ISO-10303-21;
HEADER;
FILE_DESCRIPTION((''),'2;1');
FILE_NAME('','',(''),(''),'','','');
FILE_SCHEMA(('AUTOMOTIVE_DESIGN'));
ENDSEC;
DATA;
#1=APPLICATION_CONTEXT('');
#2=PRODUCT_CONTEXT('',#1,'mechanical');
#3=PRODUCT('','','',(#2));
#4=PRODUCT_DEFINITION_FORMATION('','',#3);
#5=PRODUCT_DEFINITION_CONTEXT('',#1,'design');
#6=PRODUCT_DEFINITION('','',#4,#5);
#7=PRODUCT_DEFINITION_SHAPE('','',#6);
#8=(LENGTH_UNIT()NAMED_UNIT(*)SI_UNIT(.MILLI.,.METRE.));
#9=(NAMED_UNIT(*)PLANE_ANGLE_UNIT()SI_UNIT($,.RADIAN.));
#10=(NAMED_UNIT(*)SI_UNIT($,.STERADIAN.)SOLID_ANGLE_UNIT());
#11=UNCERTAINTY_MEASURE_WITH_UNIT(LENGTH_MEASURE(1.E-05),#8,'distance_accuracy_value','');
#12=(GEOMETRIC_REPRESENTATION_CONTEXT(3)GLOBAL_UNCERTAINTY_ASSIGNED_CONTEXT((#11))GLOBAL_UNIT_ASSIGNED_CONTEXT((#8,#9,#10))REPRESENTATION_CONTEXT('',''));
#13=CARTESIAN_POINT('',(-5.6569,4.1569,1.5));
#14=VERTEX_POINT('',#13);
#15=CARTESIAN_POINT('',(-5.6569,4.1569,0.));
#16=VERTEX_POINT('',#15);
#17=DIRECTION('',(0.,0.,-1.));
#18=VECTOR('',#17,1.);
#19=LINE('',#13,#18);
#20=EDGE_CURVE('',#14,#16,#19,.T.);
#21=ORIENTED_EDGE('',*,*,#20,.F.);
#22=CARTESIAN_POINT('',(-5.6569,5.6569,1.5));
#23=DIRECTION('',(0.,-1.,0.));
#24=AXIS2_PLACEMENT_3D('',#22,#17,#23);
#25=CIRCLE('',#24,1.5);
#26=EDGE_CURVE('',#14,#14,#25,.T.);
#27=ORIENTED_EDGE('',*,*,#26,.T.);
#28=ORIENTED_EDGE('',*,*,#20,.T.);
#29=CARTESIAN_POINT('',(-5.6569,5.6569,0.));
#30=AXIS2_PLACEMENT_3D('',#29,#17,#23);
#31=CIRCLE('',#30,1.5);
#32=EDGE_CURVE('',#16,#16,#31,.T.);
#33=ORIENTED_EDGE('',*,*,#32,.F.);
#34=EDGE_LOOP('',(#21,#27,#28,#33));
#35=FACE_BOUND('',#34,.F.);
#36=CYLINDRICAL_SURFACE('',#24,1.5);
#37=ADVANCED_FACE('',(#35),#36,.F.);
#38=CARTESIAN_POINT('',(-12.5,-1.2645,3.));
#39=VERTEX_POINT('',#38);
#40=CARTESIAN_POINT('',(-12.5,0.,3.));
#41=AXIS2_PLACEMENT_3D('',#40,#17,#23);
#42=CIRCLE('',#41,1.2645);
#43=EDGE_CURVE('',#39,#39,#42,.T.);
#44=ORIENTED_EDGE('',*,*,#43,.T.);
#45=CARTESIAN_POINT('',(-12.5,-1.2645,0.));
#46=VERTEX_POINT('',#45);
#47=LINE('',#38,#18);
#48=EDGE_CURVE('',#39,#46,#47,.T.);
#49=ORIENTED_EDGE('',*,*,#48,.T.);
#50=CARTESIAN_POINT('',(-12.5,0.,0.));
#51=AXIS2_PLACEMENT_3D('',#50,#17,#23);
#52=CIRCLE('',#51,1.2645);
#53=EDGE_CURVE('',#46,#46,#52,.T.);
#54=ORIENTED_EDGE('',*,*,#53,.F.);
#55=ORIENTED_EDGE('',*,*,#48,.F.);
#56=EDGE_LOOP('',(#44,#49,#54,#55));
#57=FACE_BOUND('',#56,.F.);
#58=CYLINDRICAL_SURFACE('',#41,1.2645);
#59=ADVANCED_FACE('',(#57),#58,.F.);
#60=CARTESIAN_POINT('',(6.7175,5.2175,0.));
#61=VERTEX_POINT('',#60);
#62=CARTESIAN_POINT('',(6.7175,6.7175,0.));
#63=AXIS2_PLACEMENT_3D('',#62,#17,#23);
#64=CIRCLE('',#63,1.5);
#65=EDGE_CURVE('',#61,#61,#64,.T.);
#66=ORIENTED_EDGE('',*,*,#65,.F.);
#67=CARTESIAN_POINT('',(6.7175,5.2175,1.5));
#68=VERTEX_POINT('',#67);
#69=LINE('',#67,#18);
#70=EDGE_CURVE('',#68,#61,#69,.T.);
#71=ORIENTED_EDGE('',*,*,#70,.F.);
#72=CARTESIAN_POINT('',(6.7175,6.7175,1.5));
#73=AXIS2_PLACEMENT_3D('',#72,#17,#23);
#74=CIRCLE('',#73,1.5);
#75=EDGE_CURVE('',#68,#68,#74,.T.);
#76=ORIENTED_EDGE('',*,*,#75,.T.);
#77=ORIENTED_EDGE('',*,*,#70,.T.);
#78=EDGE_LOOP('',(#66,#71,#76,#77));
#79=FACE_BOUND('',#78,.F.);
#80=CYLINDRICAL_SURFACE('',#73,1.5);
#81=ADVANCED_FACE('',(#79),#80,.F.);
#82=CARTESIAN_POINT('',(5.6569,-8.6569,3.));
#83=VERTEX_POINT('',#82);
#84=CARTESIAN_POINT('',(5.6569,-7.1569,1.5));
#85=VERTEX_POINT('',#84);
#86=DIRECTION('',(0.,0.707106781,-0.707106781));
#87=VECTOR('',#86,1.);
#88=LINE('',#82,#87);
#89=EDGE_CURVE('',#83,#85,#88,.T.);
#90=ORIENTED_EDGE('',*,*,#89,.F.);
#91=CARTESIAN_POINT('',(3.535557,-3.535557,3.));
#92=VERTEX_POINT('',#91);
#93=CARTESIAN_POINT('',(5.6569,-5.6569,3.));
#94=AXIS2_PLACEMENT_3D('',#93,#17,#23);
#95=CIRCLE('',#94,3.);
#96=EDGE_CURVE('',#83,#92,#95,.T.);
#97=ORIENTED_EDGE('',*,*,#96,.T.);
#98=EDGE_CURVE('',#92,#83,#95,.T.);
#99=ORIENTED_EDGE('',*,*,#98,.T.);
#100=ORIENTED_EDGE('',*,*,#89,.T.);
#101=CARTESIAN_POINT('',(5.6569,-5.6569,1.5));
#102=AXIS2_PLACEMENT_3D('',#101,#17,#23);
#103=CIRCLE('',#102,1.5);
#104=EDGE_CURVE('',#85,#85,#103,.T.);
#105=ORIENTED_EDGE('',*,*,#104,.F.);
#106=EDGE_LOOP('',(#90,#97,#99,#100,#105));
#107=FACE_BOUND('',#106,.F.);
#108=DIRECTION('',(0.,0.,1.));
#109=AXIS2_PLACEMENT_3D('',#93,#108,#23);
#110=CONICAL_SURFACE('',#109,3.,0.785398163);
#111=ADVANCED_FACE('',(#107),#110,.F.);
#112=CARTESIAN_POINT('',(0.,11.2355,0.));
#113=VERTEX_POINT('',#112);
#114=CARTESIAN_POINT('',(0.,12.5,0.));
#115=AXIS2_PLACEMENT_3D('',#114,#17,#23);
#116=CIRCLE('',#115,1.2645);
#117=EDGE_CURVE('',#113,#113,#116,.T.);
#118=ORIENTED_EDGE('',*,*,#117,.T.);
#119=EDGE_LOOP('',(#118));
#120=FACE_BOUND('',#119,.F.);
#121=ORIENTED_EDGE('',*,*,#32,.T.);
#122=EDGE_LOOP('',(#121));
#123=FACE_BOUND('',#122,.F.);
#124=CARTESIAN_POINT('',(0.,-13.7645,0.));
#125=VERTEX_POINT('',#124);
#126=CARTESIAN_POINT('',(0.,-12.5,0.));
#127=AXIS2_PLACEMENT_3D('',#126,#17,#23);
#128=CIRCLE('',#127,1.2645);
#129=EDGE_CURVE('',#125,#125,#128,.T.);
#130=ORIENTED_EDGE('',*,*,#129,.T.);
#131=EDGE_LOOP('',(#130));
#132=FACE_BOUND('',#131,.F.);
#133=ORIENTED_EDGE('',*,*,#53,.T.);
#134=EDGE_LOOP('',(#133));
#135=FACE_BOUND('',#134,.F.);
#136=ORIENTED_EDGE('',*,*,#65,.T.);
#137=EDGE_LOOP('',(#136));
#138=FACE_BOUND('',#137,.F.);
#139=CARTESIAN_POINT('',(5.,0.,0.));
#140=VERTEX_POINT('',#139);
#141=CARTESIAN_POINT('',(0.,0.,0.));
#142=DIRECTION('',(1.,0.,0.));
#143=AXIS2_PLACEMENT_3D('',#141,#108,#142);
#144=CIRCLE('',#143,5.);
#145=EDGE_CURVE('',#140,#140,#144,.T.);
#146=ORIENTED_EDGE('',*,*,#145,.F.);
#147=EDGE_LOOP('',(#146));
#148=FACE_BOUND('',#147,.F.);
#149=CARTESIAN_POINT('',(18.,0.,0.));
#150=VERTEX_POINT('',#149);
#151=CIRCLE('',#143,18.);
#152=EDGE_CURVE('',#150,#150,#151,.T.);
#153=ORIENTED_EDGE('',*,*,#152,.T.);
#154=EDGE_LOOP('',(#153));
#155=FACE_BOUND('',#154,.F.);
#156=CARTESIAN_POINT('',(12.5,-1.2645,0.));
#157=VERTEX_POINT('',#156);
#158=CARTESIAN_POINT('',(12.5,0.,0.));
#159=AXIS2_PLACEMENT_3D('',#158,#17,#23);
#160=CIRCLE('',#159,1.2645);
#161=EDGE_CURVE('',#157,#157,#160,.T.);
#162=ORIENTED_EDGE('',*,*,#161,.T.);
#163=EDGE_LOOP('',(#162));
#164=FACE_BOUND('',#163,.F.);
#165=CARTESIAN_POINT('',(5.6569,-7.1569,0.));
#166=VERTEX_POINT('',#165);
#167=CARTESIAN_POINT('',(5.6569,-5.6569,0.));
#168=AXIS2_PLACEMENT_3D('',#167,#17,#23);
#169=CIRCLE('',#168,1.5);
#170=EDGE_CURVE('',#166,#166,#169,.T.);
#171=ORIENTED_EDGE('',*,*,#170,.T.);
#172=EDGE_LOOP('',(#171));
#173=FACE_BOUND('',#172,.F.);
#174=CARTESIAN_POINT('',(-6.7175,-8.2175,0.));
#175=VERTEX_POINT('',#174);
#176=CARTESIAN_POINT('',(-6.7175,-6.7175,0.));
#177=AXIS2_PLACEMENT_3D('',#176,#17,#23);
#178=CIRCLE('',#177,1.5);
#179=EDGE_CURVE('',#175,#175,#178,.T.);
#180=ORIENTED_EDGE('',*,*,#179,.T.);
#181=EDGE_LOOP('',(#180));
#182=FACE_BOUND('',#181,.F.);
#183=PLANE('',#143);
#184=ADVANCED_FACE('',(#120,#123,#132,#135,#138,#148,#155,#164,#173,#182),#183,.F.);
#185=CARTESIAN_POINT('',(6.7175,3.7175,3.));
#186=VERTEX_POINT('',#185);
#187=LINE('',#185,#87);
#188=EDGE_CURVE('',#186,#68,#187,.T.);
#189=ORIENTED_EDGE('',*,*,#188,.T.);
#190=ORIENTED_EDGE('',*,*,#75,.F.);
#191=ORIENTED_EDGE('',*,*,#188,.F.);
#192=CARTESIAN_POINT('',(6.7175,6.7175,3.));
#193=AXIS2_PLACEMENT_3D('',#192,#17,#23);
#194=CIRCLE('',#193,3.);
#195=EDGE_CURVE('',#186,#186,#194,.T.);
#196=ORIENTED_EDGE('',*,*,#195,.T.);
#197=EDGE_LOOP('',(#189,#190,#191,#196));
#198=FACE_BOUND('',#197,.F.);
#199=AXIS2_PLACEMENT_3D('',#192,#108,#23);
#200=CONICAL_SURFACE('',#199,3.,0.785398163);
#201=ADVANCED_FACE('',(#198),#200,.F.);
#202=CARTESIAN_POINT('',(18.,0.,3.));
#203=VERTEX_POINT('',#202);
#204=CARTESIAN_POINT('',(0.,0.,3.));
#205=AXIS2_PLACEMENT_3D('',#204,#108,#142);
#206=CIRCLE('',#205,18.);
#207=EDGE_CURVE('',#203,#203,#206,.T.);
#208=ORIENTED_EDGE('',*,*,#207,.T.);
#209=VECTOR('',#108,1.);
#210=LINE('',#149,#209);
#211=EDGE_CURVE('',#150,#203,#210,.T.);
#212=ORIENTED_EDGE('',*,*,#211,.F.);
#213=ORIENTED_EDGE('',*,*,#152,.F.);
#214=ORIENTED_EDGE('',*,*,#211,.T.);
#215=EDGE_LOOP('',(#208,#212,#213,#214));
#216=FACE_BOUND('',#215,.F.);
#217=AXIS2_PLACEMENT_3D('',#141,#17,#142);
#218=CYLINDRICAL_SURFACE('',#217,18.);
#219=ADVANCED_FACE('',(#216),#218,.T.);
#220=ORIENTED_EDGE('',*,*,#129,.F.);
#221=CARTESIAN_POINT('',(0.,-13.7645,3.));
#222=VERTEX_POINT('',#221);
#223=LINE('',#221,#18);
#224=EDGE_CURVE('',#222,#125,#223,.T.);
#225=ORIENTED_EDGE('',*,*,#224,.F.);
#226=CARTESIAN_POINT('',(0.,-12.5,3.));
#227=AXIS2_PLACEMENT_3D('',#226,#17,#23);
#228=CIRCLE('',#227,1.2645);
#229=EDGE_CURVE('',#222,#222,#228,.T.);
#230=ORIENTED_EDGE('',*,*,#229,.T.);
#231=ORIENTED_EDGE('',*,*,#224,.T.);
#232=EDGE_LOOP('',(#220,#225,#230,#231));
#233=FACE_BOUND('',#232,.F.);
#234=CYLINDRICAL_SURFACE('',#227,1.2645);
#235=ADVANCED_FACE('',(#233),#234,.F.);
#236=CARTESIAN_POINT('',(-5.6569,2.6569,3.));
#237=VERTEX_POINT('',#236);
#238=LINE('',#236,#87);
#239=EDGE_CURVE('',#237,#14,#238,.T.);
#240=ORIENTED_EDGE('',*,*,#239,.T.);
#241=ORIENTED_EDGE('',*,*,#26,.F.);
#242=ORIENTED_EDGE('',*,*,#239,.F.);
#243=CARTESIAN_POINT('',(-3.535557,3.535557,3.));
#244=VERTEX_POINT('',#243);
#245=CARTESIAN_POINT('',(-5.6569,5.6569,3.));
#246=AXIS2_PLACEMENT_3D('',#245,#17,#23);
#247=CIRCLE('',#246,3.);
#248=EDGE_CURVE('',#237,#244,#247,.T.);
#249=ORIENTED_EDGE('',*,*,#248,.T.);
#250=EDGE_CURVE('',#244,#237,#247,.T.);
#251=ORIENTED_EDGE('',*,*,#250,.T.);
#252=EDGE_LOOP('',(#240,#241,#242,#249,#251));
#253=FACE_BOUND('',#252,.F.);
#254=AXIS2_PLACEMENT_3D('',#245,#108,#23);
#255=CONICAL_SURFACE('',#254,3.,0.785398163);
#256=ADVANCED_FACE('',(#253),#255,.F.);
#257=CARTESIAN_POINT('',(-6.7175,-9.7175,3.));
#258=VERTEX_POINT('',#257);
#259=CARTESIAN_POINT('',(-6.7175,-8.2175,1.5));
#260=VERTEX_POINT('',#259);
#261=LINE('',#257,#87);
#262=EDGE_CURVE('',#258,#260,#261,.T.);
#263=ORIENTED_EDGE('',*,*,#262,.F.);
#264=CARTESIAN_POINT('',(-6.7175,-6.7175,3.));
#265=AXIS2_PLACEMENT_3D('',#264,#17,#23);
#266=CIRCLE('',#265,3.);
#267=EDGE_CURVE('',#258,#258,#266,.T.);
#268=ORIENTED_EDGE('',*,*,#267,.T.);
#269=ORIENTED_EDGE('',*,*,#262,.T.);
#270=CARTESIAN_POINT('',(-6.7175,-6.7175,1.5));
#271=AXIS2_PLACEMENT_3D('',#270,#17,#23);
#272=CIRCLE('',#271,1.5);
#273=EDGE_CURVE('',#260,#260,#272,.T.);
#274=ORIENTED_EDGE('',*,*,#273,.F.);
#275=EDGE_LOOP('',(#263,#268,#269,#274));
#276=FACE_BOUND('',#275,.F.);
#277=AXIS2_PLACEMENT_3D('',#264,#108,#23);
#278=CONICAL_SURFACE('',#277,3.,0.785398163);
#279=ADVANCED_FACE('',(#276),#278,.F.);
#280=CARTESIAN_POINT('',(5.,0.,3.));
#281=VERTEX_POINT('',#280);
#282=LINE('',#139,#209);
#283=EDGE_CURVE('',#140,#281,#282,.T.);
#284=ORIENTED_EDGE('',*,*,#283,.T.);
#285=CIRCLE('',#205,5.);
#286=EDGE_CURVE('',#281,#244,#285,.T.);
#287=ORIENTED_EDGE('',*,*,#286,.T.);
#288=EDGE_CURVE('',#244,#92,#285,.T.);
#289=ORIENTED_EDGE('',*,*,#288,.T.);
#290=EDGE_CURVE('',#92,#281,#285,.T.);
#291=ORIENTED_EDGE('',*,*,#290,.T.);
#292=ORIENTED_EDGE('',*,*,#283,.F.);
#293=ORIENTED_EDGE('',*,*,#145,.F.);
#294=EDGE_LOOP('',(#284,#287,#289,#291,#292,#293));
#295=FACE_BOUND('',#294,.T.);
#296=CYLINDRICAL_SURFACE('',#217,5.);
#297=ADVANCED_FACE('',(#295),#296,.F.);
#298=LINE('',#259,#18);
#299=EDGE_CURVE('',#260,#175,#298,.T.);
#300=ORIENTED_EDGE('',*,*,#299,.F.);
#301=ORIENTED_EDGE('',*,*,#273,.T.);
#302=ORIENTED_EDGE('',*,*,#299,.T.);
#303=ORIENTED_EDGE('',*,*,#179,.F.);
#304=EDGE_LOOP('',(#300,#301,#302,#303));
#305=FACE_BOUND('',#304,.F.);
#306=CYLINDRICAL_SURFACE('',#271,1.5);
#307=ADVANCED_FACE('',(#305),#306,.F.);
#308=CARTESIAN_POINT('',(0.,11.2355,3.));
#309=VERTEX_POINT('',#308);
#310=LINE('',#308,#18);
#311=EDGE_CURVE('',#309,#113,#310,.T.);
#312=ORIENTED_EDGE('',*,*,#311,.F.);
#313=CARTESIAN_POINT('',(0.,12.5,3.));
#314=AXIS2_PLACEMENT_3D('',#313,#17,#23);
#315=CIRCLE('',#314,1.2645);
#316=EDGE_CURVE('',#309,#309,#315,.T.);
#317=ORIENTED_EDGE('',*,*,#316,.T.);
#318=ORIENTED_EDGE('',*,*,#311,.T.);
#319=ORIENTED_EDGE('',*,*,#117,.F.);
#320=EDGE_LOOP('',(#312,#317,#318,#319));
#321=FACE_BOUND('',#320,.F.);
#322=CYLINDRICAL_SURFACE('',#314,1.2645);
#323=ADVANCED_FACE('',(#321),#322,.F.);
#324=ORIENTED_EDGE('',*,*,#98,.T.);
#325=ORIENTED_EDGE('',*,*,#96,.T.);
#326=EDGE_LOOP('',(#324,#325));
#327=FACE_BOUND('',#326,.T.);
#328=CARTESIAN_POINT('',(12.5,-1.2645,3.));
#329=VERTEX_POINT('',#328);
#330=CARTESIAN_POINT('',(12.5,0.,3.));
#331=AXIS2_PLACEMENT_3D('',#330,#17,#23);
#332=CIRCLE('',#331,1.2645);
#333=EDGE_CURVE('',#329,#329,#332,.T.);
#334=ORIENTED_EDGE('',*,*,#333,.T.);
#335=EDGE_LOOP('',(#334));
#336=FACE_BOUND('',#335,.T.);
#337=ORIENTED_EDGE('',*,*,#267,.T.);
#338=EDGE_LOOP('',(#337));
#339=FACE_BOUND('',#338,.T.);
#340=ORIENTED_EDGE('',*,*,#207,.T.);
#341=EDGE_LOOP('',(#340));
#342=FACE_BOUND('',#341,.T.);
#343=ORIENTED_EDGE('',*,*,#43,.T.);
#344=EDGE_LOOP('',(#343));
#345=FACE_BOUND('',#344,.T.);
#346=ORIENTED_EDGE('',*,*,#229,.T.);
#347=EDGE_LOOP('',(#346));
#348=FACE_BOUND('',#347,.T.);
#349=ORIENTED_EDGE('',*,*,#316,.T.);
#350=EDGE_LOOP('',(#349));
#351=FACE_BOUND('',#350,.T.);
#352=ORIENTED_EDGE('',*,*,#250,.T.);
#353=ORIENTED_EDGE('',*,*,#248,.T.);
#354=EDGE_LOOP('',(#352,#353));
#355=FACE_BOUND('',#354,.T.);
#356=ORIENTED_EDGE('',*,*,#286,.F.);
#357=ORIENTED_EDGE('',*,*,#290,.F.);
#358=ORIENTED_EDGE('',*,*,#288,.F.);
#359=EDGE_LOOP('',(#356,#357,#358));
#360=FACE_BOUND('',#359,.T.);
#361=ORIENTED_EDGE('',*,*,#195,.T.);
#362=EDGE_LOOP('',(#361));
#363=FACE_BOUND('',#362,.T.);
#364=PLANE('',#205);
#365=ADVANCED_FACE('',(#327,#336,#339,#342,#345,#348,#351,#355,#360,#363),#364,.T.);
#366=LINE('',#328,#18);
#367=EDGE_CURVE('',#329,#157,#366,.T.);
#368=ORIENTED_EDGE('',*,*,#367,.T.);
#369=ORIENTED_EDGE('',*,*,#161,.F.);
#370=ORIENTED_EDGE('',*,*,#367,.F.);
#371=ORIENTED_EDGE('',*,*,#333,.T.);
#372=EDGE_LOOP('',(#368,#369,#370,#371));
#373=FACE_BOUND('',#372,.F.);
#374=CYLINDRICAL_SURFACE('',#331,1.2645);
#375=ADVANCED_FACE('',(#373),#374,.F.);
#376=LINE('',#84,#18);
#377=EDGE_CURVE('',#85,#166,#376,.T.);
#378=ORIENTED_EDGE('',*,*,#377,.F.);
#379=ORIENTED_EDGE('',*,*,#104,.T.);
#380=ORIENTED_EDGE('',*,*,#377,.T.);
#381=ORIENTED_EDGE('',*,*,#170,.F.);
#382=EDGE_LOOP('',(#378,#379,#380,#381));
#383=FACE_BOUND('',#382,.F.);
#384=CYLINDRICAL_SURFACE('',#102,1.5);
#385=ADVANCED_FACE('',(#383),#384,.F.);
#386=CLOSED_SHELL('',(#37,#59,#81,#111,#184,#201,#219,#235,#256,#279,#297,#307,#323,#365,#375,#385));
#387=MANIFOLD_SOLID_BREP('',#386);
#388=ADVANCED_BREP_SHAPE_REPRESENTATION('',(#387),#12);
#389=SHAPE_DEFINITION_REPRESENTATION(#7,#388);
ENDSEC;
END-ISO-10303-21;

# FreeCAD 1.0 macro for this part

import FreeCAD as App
import Part
import Sketcher
Q = App.Units.Quantity

doc = App.newDocument("Part")
body = doc.addObject("PartDesign::Body", "Body")

# Sketch on XY plane
sketch1 = body.newObject("Sketcher::SketchObject", "Sketch")
sketch1.AttachmentSupport = (doc.getObject("XY_Plane"), [""])
sketch1.MapMode = "FlatFace"
sketch1.addGeometry(Part.Circle(App.Vector(0, 0, 0), App.Vector(0, 0, 1), 18), False)
sketch1.addGeometry(Part.Circle(App.Vector(0, 0, 0), App.Vector(0, 0, 1), 5), False)
sketch1.addConstraint(Sketcher.Constraint("Coincident", 0, 3, -1, 1))
sketch1.addConstraint(Sketcher.Constraint("Coincident", 1, 3, -1, 1))
sketch1.addConstraint(Sketcher.Constraint("Diameter", 0, Q("36 mm")))
sketch1.addConstraint(Sketcher.Constraint("Diameter", 1, Q("10 mm")))
pad1 = body.newObject("PartDesign::Pad", "Pad")
pad1.Profile = sketch1
pad1.Length = 3

# Sketch on XY plane
sketch2 = body.newObject("Sketcher::SketchObject", "Sketch001")
sketch2.AttachmentSupport = (doc.getObject("XY_Plane"), [""])
sketch2.MapMode = "FlatFace"
sketch2.AttachmentOffset = App.Placement(App.Vector(0, 0, 3), App.Rotation())
sketch2.addGeometry(Part.Circle(App.Vector(6.7, 6.7, 0), App.Vector(0, 0, 1), 1.5), False)
sketch2.addGeometry(Part.Circle(App.Vector(-5.7, 5.7, 0), App.Vector(0, 0, 1), 1.5), False)
sketch2.addGeometry(Part.Circle(App.Vector(-6.7, -6.7, 0), App.Vector(0, 0, 1), 1.5), False)
sketch2.addGeometry(Part.Circle(App.Vector(5.7, -5.7, 0), App.Vector(0, 0, 1), 1.5), False)
sketch2.addConstraint(Sketcher.Constraint("Equal", 0, 1))
sketch2.addConstraint(Sketcher.Constraint("Equal", 1, 2))
sketch2.addConstraint(Sketcher.Constraint("Equal", 2, 3))
sketch2.addConstraint(Sketcher.Constraint("Symmetric", 0, 3, 2, 3, -1, 1))
sketch2.addConstraint(Sketcher.Constraint("Symmetric", 1, 3, 3, 3, -1, 1))
sketch2.addConstraint(Sketcher.Constraint("Diameter", 0, Q("3 mm")))
sketch2.addConstraint(Sketcher.Constraint("DistanceX", 1, 3, -1, 1, Q("5.657 mm")))
sketch2.addConstraint(Sketcher.Constraint("DistanceY", -1, 1, 1, 3, Q("5.657 mm")))
sketch2.addConstraint(Sketcher.Constraint("DistanceX", 2, 3, 0, 3, Q("13.435 mm")))
sketch2.addConstraint(Sketcher.Constraint("DistanceY", 2, 3, 0, 3, Q("13.435 mm")))
doc.recompute()
hole = body.newObject("PartDesign::Hole", "Hole")
hole.Profile = sketch2
hole.ThreadType = "None"
hole.Diameter = 3
hole.DepthType = "Dimension"
hole.Depth = 5
hole.DrillPoint = "Angled"
hole.DrillPointAngle = 118
hole.HoleCutType = "Countersink"
hole.HoleCutDiameter = 6
hole.HoleCutCountersinkAngle = 90

# Sketch on XY plane
sketch3 = body.newObject("Sketcher::SketchObject", "Sketch002")
sketch3.AttachmentSupport = (doc.getObject("XY_Plane"), [""])
sketch3.MapMode = "FlatFace"
sketch3.AttachmentOffset = App.Placement(App.Vector(0, 0, 3), App.Rotation())
sketch3.addGeometry(Part.Circle(App.Vector(0, 12.5, 0), App.Vector(0, 0, 1), 1.3), False)
sketch3.addGeometry(Part.Circle(App.Vector(-12.5, 0, 0), App.Vector(0, 0, 1), 1.3), False)
sketch3.addGeometry(Part.Circle(App.Vector(0, -12.5, 0), App.Vector(0, 0, 1), 1.3), False)
sketch3.addGeometry(Part.Circle(App.Vector(12.5, 0, 0), App.Vector(0, 0, 1), 1.3), False)
sketch3.addConstraint(Sketcher.Constraint("Equal", 0, 1))
sketch3.addConstraint(Sketcher.Constraint("Equal", 1, 2))
sketch3.addConstraint(Sketcher.Constraint("Equal", 2, 3))
sketch3.addConstraint(Sketcher.Constraint("Symmetric", 0, 3, 2, 3, -1, 1))
sketch3.addConstraint(Sketcher.Constraint("Symmetric", 1, 3, 3, 3, -1, 1))
sketch3.addConstraint(Sketcher.Constraint("PointOnObject", 0, 3, -2))
sketch3.addConstraint(Sketcher.Constraint("PointOnObject", 1, 3, -1))
sketch3.addConstraint(Sketcher.Constraint("Diameter", 0, Q("2.529 mm")))
sketch3.addConstraint(Sketcher.Constraint("DistanceY", 2, 3, 0, 3, Q("25 mm")))
sketch3.addConstraint(Sketcher.Constraint("DistanceX", 1, 3, 3, 3, Q("25 mm")))
doc.recompute()
hole2 = body.newObject("PartDesign::Hole", "Hole001")
hole2.Profile = sketch3
hole2.ThreadType = "None"
hole2.Diameter = 2.529
hole2.DepthType = "Dimension"
hole2.Depth = 5
hole2.DrillPoint = "Angled"
hole2.DrillPointAngle = 118

doc.recompute()
